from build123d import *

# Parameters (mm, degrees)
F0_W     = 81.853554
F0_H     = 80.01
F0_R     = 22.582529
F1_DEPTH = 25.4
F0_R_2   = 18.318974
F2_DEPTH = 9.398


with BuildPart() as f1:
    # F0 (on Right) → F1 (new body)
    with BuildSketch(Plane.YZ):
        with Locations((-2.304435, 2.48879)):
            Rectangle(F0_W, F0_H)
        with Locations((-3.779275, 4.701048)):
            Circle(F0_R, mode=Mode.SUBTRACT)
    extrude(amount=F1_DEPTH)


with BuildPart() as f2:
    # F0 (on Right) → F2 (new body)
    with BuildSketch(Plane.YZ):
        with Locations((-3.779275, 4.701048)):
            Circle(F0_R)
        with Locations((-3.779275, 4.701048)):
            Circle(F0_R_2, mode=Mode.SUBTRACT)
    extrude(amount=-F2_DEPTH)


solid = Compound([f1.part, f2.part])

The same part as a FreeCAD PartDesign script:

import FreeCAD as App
import Part
import Sketcher

V = App.Vector
Q = App.Units.Quantity

doc = App.newDocument("Part")
params = doc.addObject("Spreadsheet::Sheet", "Params")
for row, (alias, value) in enumerate([
    ("sketch1_height", "3.15 in"),
    ("pad1_length", "1 in"),
    ("pad2_length", "0.37 in"),
], start=1):
    params.set(f"A{row}", alias)
    params.set(f"B{row}", "=" + value)
    params.setAlias(f"B{row}", alias)

body = doc.addObject("PartDesign::Body", "Body")

sketch1 = doc.addObject("Sketcher::SketchObject", "Sketch")
body.addObject(sketch1)
sketch1.AttachmentSupport = (doc.YZ_Plane, [""])
sketch1.MapMode = "FlatFace"
sketch1.addGeometry(Part.LineSegment(V(-43.231212, 42.49379, 0), V(-43.231212, -37.51621, 0)), False)
sketch1.addGeometry(Part.LineSegment(V(-43.231212, -37.51621, 0), V(38.622342, -37.51621, 0)), False)
sketch1.addGeometry(Part.LineSegment(V(38.622342, -37.51621, 0), V(38.622342, 42.49379, 0)), False)
sketch1.addGeometry(Part.LineSegment(V(38.622342, 42.49379, 0), V(-43.231212, 42.49379, 0)), False)
sketch1.addGeometry(Part.Circle(V(-3.779275, 4.701048, 0), V(0, 0, 1), 22.582529), False)
sketch1.addConstraint(Sketcher.Constraint("Coincident", 0, 2, 1, 1))
sketch1.addConstraint(Sketcher.Constraint("Coincident", 1, 2, 2, 1))
sketch1.addConstraint(Sketcher.Constraint("Coincident", 2, 2, 3, 1))
sketch1.addConstraint(Sketcher.Constraint("Coincident", 3, 2, 0, 1))
sketch1.addConstraint(Sketcher.Constraint("Vertical", 0))
sketch1.addConstraint(Sketcher.Constraint("Horizontal", 1))
sketch1.addConstraint(Sketcher.Constraint("Vertical", 2))
sketch1.addConstraint(Sketcher.Constraint("Horizontal", 3))
sketch1.addConstraint(Sketcher.Constraint("DistanceY", 0, 2, 0, 1, Q("3.15 in")))
sketch1.addConstraint(Sketcher.Constraint("Diameter", 4, Q("45.165058 mm")))
sketch1.addConstraint(Sketcher.Constraint("DistanceX", 1, 1, 1, 2, Q("81.853554 mm")))
sketch1.addConstraint(Sketcher.Constraint("DistanceY", 0, 2, -1, 1, Q("37.51621 mm")))
sketch1.addConstraint(Sketcher.Constraint("DistanceY", 4, 3, 2, 2, Q("37.792742 mm")))
sketch1.addConstraint(Sketcher.Constraint("DistanceX", 4, 3, -1, 1, Q("3.779275 mm")))
sketch1.addConstraint(Sketcher.Constraint("DistanceX", 0, 2, -1, 1, Q("43.231212 mm")))
sketch1.setExpression("Constraints[8]", "Params.sketch1_height")
pad1 = doc.addObject("PartDesign::Pad", "Pad")
body.addObject(pad1)
pad1.Profile = sketch1
pad1.setExpression("Length", "Params.pad1_length")
body2 = doc.addObject("PartDesign::Body", "Body001")

sketch2 = doc.addObject("Sketcher::SketchObject", "Sketch001")
body2.addObject(sketch2)
sketch2.AttachmentSupport = (doc.getObject("YZ_Plane001"), [""])
sketch2.MapMode = "FlatFace"
sketch2.addGeometry(Part.Circle(V(-3.779275, 4.701048, 0), V(0, 0, 1), 22.582529), False)
sketch2.addGeometry(Part.Circle(V(-3.779275, 4.701048, 0), V(0, 0, 1), 18.318974), False)
sketch2.addConstraint(Sketcher.Constraint("Coincident", 1, 3, 0, 3))
sketch2.addConstraint(Sketcher.Constraint("Diameter", 0, Q("45.165058 mm")))
sketch2.addConstraint(Sketcher.Constraint("Diameter", 1, Q("36.637948 mm")))
sketch2.addConstraint(Sketcher.Constraint("DistanceX", 0, 3, -1, 1, Q("3.779275 mm")))
sketch2.addConstraint(Sketcher.Constraint("DistanceY", -1, 1, 0, 3, Q("4.701048 mm")))
pad2 = doc.addObject("PartDesign::Pad", "Pad001")
body2.addObject(pad2)
pad2.Profile = sketch2
pad2.setExpression("Length", "Params.pad2_length")
pad2.Reversed = True

doc.recompute()
